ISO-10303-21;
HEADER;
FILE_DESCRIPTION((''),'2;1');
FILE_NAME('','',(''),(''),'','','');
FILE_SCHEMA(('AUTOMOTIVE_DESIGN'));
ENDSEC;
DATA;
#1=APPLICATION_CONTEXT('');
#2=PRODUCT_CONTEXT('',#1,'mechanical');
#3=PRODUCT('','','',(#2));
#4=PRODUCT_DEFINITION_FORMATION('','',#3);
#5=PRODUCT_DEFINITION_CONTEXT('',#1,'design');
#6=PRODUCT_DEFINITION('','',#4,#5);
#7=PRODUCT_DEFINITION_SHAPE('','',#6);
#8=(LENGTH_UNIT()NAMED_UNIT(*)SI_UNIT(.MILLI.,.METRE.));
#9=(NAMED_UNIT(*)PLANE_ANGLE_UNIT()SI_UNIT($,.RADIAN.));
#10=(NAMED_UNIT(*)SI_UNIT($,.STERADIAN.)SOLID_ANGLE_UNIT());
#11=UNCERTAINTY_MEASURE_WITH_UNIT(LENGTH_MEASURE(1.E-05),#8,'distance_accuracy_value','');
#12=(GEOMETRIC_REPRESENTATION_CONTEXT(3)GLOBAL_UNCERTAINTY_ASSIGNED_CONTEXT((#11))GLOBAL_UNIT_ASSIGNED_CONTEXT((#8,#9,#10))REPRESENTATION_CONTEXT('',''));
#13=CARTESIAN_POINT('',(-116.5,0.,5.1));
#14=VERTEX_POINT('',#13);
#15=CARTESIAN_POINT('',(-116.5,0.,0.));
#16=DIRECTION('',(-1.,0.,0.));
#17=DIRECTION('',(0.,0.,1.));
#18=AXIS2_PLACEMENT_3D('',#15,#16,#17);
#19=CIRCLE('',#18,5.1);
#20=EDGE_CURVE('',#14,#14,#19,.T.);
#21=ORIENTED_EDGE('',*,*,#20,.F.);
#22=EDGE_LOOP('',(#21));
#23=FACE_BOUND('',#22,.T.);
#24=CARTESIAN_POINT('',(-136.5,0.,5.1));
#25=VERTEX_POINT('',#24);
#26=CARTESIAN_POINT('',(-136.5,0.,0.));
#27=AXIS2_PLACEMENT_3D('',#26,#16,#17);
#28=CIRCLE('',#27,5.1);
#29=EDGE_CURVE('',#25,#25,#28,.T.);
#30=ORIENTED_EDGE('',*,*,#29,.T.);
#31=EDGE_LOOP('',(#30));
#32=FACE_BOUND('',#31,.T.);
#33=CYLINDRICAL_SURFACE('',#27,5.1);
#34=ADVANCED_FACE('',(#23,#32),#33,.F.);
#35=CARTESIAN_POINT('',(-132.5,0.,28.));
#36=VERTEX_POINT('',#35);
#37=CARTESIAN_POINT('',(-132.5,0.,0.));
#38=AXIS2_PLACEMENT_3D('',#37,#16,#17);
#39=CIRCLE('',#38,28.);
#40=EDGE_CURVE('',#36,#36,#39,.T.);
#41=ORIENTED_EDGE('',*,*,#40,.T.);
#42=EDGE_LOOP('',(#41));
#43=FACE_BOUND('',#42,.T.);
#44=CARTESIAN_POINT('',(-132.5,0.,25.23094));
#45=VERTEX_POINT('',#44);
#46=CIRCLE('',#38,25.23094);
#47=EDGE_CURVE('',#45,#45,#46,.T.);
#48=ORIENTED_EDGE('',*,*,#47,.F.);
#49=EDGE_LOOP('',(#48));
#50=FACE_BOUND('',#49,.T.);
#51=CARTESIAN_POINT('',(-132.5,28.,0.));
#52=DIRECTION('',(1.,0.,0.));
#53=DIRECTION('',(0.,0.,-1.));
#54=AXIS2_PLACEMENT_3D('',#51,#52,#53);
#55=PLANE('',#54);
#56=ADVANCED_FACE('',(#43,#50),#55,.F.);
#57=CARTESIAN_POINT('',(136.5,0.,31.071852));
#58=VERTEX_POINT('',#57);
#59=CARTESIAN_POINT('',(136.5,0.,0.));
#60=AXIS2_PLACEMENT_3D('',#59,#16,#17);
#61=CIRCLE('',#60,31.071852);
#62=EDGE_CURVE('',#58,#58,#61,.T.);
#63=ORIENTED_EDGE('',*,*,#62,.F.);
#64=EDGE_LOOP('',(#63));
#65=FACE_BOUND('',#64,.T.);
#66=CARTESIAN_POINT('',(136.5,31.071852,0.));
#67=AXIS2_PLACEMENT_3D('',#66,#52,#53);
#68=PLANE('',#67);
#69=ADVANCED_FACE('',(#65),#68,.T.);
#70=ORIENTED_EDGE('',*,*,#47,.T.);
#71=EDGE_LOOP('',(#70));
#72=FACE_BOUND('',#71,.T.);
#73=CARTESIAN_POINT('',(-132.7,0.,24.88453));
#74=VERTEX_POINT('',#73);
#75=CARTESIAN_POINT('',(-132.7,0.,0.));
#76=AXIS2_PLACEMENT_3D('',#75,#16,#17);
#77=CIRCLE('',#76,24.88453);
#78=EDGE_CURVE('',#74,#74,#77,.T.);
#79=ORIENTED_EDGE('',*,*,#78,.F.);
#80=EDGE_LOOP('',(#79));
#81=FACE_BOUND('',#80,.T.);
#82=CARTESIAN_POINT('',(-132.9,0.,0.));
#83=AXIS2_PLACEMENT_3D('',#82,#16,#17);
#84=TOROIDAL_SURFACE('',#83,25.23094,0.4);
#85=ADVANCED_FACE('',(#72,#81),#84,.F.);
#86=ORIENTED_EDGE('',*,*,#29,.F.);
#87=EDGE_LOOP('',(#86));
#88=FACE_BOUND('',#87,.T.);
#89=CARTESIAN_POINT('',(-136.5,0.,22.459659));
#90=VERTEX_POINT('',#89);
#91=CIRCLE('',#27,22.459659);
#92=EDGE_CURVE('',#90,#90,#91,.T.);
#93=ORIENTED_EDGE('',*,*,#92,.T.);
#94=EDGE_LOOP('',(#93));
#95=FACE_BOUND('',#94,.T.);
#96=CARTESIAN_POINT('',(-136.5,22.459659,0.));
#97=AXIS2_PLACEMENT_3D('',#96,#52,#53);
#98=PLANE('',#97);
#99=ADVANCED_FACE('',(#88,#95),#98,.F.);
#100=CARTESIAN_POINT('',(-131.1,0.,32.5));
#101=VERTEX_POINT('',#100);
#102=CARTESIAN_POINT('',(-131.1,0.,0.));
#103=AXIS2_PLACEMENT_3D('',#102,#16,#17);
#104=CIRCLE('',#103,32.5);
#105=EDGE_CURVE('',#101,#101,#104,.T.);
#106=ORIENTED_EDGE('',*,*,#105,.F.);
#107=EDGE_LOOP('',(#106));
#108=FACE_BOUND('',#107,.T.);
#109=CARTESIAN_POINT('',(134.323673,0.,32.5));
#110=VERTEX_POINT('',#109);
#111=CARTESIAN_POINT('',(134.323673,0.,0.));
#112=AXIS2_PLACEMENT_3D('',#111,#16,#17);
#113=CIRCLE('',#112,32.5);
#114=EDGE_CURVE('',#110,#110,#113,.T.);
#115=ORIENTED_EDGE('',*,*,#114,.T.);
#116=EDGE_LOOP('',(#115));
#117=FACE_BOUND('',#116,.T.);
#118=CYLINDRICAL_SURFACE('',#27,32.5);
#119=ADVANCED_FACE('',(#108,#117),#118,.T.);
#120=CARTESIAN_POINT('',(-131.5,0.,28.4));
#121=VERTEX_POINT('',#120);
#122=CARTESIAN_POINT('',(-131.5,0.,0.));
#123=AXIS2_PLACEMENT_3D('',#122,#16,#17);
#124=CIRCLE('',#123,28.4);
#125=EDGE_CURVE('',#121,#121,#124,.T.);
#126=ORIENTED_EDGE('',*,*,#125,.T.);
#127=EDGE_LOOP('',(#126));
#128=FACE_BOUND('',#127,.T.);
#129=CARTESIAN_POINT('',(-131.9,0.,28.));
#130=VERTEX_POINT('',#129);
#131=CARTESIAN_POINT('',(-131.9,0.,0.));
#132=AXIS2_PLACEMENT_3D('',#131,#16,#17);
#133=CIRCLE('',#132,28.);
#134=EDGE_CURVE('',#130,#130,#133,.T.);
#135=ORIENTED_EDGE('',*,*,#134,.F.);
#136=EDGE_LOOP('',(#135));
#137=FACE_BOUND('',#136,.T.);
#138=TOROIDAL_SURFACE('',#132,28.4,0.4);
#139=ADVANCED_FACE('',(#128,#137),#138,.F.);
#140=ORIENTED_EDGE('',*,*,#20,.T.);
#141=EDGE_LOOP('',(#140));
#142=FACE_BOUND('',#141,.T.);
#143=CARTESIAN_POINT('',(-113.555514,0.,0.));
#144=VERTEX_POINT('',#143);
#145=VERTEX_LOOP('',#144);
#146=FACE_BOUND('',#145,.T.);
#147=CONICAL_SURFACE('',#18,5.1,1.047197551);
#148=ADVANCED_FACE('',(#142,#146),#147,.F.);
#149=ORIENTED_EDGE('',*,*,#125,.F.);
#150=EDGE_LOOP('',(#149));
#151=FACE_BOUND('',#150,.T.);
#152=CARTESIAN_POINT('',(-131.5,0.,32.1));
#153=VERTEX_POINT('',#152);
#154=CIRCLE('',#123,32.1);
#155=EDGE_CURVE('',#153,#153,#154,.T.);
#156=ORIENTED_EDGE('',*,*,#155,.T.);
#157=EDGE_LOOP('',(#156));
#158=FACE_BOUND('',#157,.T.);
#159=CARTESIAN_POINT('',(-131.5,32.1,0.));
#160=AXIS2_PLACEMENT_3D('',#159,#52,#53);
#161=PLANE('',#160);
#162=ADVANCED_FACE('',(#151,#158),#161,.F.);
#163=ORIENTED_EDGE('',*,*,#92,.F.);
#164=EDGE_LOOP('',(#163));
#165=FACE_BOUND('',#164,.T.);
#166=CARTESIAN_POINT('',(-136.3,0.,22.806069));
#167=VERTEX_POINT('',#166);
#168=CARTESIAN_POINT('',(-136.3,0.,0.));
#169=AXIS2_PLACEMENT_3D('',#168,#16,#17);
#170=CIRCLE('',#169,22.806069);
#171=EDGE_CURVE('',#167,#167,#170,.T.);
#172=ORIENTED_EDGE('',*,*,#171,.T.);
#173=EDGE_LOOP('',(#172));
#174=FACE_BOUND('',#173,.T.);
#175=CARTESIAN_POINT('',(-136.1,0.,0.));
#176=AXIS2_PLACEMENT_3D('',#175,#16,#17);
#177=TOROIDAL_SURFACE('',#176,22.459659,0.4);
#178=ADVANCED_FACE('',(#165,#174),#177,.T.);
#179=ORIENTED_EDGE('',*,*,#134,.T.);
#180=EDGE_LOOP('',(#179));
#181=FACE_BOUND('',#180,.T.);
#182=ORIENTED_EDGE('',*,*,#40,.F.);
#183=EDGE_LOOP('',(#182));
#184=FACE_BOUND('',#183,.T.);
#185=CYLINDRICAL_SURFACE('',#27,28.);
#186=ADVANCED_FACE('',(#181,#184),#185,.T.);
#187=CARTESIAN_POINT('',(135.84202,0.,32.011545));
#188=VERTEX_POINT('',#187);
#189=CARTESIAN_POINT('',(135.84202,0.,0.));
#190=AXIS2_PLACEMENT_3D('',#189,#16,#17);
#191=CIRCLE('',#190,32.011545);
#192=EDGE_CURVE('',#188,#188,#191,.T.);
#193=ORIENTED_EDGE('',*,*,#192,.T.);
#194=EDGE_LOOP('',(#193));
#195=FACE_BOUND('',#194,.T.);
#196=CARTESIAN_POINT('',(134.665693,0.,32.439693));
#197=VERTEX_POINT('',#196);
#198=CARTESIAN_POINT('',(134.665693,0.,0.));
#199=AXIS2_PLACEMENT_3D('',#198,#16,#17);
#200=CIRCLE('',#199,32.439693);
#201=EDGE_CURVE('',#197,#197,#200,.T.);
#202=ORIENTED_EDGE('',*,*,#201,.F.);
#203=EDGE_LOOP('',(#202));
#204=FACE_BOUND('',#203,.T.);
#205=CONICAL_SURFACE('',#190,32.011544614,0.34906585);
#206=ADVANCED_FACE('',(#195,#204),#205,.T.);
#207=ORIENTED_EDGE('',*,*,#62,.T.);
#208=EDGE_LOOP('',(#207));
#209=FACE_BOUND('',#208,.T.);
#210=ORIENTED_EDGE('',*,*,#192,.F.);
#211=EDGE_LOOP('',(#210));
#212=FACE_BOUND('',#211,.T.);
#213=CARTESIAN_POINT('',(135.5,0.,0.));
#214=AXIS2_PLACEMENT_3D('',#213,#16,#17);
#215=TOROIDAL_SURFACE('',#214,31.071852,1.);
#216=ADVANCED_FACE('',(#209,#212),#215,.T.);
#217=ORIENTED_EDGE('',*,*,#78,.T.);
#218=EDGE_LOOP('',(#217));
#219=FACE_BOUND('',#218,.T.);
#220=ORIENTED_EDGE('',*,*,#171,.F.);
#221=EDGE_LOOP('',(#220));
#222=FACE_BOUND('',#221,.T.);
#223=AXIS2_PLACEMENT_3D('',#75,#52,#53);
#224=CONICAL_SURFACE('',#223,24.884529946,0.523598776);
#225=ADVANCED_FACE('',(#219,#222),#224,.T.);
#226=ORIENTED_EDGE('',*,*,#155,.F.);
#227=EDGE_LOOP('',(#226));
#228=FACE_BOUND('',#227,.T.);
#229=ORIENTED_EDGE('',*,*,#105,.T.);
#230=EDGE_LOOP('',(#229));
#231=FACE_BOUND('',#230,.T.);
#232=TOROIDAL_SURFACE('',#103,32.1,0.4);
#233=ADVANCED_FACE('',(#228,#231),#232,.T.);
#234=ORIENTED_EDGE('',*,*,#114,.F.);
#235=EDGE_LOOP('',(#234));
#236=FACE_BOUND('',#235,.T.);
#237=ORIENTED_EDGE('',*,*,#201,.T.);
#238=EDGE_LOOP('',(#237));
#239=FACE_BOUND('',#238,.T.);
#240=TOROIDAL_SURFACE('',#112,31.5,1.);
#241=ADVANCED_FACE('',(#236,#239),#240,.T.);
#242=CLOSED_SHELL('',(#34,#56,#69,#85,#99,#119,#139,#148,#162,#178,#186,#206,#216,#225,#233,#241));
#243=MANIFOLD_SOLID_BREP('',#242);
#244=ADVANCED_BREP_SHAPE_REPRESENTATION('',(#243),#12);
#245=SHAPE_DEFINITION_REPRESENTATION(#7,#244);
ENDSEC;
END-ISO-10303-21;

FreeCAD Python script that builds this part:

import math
import FreeCAD as App
import Part
import Sketcher
Q = App.Units.Quantity

doc = App.newDocument("Part")
body = doc.addObject("PartDesign::Body", "Body")

# Sketch on XY plane
sketch1 = body.newObject("Sketcher::SketchObject", "Sketch")
sketch1.AttachmentSupport = (doc.getObject("XY_Plane"), [""])
sketch1.MapMode = "FlatFace"
sketch1.addGeometry(Part.LineSegment(App.Vector(134.323673, 32.5, 0), App.Vector(-131.1, 32.5, 0)), False)
sketch1.addGeometry(Part.ArcOfCircle(Part.Circle(App.Vector(-131.1, 32.1, 0), App.Vector(0, 0, 1), 0.4), math.radians(90), math.radians(180)), False)
sketch1.addGeometry(Part.LineSegment(App.Vector(-131.5, 32.1, 0), App.Vector(-131.5, 28.4, 0)), False)
sketch1.addGeometry(Part.ArcOfCircle(Part.Circle(App.Vector(-131.9, 28.4, 0), App.Vector(0, 0, 1), 0.4), math.radians(-90), math.radians(0)), False)
sketch1.addGeometry(Part.LineSegment(App.Vector(-131.9, 28, 0), App.Vector(-132.5, 28, 0)), False)
sketch1.addGeometry(Part.LineSegment(App.Vector(-132.5, 28, 0), App.Vector(-132.5, 25.23094, 0)), False)
sketch1.addGeometry(Part.ArcOfCircle(Part.Circle(App.Vector(-132.9, 25.23094, 0), App.Vector(0, 0, 1), 0.4), math.radians(-60), math.radians(0)), False)
sketch1.addGeometry(Part.LineSegment(App.Vector(-132.7, 24.88453, 0), App.Vector(-136.3, 22.806069, 0)), False)
sketch1.addGeometry(Part.ArcOfCircle(Part.Circle(App.Vector(-136.1, 22.459659, 0), App.Vector(0, 0, 1), 0.4), math.radians(120), math.radians(180)), False)
sketch1.addGeometry(Part.LineSegment(App.Vector(-136.5, 22.459659, 0), App.Vector(-136.5, 5.1, 0)), False)
sketch1.addGeometry(Part.LineSegment(App.Vector(-136.5, 5.1, 0), App.Vector(-116.5, 5.1, 0)), False)
sketch1.addGeometry(Part.LineSegment(App.Vector(-116.5, 5.1, 0), App.Vector(-113.555514, 0, 0)), False)
sketch1.addGeometry(Part.LineSegment(App.Vector(-113.555514, 0, 0), App.Vector(136.5, 0, 0)), False)
sketch1.addGeometry(Part.LineSegment(App.Vector(136.5, 0, 0), App.Vector(136.5, 31.071852, 0)), False)
sketch1.addGeometry(Part.ArcOfCircle(Part.Circle(App.Vector(135.5, 31.071852, 0), App.Vector(0, 0, 1), 1), math.radians(0), math.radians(70)), False)
sketch1.addGeometry(Part.LineSegment(App.Vector(135.84202, 32.011545, 0), App.Vector(134.665693, 32.439693, 0)), False)
sketch1.addGeometry(Part.ArcOfCircle(Part.Circle(App.Vector(134.323673, 31.5, 0), App.Vector(0, 0, 1), 1), math.radians(70), math.radians(90)), False)
sketch1.addConstraint(Sketcher.Constraint("Tangent", 0, 2, 1, 1))
sketch1.addConstraint(Sketcher.Constraint("Tangent", 1, 2, 2, 1))
sketch1.addConstraint(Sketcher.Constraint("Tangent", 2, 2, 3, 2))
sketch1.addConstraint(Sketcher.Constraint("Tangent", 3, 1, 4, 1))
sketch1.addConstraint(Sketcher.Constraint("Coincident", 4, 2, 5, 1))
sketch1.addConstraint(Sketcher.Constraint("Tangent", 5, 2, 6, 2))
sketch1.addConstraint(Sketcher.Constraint("Tangent", 6, 1, 7, 1))
sketch1.addConstraint(Sketcher.Constraint("Tangent", 7, 2, 8, 1))
sketch1.addConstraint(Sketcher.Constraint("Tangent", 8, 2, 9, 1))
sketch1.addConstraint(Sketcher.Constraint("Coincident", 9, 2, 10, 1))
sketch1.addConstraint(Sketcher.Constraint("Coincident", 10, 2, 11, 1))
sketch1.addConstraint(Sketcher.Constraint("Coincident", 11, 2, 12, 1))
sketch1.addConstraint(Sketcher.Constraint("Coincident", 12, 2, 13, 1))
sketch1.addConstraint(Sketcher.Constraint("Tangent", 13, 2, 14, 1))
sketch1.addConstraint(Sketcher.Constraint("Tangent", 14, 2, 15, 1))
sketch1.addConstraint(Sketcher.Constraint("Tangent", 15, 2, 16, 1))
sketch1.addConstraint(Sketcher.Constraint("Tangent", 16, 2, 0, 1))
sketch1.addConstraint(Sketcher.Constraint("Horizontal", 0))
sketch1.addConstraint(Sketcher.Constraint("Vertical", 2))
sketch1.addConstraint(Sketcher.Constraint("Horizontal", 4))
sketch1.addConstraint(Sketcher.Constraint("Vertical", 5))
sketch1.addConstraint(Sketcher.Constraint("Vertical", 9))
sketch1.addConstraint(Sketcher.Constraint("Horizontal", 10))
sketch1.addConstraint(Sketcher.Constraint("Horizontal", 12))
sketch1.addConstraint(Sketcher.Constraint("Vertical", 13))
sketch1.addConstraint(Sketcher.Constraint("Equal", 1, 3))
sketch1.addConstraint(Sketcher.Constraint("Equal", 3, 6))
sketch1.addConstraint(Sketcher.Constraint("Equal", 6, 8))
sketch1.addConstraint(Sketcher.Constraint("Equal", 14, 16))
sketch1.addConstraint(Sketcher.Constraint("PointOnObject", 11, 2, -1))
sketch1.addConstraint(Sketcher.Constraint("Perpendicular", 7, 11))
sketch1.addConstraint(Sketcher.Constraint("Radius", 14, Q("1 mm")))
sketch1.addConstraint(Sketcher.Constraint("Radius", 1, Q("0.4 mm")))
sketch1.addConstraint(Sketcher.Constraint("DistanceX", 10, 1, 10, 2, Q("20 mm")))
sketch1.addConstraint(Sketcher.Constraint("Angle", 7, Q("-150 deg")))
sketch1.addConstraint(Sketcher.Constraint("Angle", 15, Q("160 deg")))
sketch1.addConstraint(Sketcher.Constraint("DistanceX", 4, 2, 4, 1, Q("0.6 mm")))
sketch1.addConstraint(Sketcher.Constraint("DistanceY", 2, 2, 2, 1, Q("3.7 mm")))
sketch1.addConstraint(Sketcher.Constraint("DistanceY", -1, 1, 3, 1, Q("28 mm")))
sketch1.addConstraint(Sketcher.Constraint("DistanceX", 8, 3, 1, 3, Q("5 mm")))
sketch1.addConstraint(Sketcher.Constraint("DistanceX", 10, 2, 12, 2, Q("253 mm")))
sketch1.addConstraint(Sketcher.Constraint("DistanceX", 1, 3, -1, 1, Q("131.1 mm")))
sketch1.addConstraint(Sketcher.Constraint("DistanceY", -1, 1, 9, 2, Q("5.1 mm")))
sketch1.addConstraint(Sketcher.Constraint("DistanceY", 5, 2, 5, 1, Q("2.76906 mm")))
sketch1.addConstraint(Sketcher.Constraint("DistanceY", 13, 1, 13, 2, Q("31.071852 mm")))
revolution = body.newObject("PartDesign::Revolution", "Revolution")
revolution.Profile = sketch1
revolution.ReferenceAxis = (sketch1, ["H_Axis"])
revolution.Angle = 360

doc.recompute()
